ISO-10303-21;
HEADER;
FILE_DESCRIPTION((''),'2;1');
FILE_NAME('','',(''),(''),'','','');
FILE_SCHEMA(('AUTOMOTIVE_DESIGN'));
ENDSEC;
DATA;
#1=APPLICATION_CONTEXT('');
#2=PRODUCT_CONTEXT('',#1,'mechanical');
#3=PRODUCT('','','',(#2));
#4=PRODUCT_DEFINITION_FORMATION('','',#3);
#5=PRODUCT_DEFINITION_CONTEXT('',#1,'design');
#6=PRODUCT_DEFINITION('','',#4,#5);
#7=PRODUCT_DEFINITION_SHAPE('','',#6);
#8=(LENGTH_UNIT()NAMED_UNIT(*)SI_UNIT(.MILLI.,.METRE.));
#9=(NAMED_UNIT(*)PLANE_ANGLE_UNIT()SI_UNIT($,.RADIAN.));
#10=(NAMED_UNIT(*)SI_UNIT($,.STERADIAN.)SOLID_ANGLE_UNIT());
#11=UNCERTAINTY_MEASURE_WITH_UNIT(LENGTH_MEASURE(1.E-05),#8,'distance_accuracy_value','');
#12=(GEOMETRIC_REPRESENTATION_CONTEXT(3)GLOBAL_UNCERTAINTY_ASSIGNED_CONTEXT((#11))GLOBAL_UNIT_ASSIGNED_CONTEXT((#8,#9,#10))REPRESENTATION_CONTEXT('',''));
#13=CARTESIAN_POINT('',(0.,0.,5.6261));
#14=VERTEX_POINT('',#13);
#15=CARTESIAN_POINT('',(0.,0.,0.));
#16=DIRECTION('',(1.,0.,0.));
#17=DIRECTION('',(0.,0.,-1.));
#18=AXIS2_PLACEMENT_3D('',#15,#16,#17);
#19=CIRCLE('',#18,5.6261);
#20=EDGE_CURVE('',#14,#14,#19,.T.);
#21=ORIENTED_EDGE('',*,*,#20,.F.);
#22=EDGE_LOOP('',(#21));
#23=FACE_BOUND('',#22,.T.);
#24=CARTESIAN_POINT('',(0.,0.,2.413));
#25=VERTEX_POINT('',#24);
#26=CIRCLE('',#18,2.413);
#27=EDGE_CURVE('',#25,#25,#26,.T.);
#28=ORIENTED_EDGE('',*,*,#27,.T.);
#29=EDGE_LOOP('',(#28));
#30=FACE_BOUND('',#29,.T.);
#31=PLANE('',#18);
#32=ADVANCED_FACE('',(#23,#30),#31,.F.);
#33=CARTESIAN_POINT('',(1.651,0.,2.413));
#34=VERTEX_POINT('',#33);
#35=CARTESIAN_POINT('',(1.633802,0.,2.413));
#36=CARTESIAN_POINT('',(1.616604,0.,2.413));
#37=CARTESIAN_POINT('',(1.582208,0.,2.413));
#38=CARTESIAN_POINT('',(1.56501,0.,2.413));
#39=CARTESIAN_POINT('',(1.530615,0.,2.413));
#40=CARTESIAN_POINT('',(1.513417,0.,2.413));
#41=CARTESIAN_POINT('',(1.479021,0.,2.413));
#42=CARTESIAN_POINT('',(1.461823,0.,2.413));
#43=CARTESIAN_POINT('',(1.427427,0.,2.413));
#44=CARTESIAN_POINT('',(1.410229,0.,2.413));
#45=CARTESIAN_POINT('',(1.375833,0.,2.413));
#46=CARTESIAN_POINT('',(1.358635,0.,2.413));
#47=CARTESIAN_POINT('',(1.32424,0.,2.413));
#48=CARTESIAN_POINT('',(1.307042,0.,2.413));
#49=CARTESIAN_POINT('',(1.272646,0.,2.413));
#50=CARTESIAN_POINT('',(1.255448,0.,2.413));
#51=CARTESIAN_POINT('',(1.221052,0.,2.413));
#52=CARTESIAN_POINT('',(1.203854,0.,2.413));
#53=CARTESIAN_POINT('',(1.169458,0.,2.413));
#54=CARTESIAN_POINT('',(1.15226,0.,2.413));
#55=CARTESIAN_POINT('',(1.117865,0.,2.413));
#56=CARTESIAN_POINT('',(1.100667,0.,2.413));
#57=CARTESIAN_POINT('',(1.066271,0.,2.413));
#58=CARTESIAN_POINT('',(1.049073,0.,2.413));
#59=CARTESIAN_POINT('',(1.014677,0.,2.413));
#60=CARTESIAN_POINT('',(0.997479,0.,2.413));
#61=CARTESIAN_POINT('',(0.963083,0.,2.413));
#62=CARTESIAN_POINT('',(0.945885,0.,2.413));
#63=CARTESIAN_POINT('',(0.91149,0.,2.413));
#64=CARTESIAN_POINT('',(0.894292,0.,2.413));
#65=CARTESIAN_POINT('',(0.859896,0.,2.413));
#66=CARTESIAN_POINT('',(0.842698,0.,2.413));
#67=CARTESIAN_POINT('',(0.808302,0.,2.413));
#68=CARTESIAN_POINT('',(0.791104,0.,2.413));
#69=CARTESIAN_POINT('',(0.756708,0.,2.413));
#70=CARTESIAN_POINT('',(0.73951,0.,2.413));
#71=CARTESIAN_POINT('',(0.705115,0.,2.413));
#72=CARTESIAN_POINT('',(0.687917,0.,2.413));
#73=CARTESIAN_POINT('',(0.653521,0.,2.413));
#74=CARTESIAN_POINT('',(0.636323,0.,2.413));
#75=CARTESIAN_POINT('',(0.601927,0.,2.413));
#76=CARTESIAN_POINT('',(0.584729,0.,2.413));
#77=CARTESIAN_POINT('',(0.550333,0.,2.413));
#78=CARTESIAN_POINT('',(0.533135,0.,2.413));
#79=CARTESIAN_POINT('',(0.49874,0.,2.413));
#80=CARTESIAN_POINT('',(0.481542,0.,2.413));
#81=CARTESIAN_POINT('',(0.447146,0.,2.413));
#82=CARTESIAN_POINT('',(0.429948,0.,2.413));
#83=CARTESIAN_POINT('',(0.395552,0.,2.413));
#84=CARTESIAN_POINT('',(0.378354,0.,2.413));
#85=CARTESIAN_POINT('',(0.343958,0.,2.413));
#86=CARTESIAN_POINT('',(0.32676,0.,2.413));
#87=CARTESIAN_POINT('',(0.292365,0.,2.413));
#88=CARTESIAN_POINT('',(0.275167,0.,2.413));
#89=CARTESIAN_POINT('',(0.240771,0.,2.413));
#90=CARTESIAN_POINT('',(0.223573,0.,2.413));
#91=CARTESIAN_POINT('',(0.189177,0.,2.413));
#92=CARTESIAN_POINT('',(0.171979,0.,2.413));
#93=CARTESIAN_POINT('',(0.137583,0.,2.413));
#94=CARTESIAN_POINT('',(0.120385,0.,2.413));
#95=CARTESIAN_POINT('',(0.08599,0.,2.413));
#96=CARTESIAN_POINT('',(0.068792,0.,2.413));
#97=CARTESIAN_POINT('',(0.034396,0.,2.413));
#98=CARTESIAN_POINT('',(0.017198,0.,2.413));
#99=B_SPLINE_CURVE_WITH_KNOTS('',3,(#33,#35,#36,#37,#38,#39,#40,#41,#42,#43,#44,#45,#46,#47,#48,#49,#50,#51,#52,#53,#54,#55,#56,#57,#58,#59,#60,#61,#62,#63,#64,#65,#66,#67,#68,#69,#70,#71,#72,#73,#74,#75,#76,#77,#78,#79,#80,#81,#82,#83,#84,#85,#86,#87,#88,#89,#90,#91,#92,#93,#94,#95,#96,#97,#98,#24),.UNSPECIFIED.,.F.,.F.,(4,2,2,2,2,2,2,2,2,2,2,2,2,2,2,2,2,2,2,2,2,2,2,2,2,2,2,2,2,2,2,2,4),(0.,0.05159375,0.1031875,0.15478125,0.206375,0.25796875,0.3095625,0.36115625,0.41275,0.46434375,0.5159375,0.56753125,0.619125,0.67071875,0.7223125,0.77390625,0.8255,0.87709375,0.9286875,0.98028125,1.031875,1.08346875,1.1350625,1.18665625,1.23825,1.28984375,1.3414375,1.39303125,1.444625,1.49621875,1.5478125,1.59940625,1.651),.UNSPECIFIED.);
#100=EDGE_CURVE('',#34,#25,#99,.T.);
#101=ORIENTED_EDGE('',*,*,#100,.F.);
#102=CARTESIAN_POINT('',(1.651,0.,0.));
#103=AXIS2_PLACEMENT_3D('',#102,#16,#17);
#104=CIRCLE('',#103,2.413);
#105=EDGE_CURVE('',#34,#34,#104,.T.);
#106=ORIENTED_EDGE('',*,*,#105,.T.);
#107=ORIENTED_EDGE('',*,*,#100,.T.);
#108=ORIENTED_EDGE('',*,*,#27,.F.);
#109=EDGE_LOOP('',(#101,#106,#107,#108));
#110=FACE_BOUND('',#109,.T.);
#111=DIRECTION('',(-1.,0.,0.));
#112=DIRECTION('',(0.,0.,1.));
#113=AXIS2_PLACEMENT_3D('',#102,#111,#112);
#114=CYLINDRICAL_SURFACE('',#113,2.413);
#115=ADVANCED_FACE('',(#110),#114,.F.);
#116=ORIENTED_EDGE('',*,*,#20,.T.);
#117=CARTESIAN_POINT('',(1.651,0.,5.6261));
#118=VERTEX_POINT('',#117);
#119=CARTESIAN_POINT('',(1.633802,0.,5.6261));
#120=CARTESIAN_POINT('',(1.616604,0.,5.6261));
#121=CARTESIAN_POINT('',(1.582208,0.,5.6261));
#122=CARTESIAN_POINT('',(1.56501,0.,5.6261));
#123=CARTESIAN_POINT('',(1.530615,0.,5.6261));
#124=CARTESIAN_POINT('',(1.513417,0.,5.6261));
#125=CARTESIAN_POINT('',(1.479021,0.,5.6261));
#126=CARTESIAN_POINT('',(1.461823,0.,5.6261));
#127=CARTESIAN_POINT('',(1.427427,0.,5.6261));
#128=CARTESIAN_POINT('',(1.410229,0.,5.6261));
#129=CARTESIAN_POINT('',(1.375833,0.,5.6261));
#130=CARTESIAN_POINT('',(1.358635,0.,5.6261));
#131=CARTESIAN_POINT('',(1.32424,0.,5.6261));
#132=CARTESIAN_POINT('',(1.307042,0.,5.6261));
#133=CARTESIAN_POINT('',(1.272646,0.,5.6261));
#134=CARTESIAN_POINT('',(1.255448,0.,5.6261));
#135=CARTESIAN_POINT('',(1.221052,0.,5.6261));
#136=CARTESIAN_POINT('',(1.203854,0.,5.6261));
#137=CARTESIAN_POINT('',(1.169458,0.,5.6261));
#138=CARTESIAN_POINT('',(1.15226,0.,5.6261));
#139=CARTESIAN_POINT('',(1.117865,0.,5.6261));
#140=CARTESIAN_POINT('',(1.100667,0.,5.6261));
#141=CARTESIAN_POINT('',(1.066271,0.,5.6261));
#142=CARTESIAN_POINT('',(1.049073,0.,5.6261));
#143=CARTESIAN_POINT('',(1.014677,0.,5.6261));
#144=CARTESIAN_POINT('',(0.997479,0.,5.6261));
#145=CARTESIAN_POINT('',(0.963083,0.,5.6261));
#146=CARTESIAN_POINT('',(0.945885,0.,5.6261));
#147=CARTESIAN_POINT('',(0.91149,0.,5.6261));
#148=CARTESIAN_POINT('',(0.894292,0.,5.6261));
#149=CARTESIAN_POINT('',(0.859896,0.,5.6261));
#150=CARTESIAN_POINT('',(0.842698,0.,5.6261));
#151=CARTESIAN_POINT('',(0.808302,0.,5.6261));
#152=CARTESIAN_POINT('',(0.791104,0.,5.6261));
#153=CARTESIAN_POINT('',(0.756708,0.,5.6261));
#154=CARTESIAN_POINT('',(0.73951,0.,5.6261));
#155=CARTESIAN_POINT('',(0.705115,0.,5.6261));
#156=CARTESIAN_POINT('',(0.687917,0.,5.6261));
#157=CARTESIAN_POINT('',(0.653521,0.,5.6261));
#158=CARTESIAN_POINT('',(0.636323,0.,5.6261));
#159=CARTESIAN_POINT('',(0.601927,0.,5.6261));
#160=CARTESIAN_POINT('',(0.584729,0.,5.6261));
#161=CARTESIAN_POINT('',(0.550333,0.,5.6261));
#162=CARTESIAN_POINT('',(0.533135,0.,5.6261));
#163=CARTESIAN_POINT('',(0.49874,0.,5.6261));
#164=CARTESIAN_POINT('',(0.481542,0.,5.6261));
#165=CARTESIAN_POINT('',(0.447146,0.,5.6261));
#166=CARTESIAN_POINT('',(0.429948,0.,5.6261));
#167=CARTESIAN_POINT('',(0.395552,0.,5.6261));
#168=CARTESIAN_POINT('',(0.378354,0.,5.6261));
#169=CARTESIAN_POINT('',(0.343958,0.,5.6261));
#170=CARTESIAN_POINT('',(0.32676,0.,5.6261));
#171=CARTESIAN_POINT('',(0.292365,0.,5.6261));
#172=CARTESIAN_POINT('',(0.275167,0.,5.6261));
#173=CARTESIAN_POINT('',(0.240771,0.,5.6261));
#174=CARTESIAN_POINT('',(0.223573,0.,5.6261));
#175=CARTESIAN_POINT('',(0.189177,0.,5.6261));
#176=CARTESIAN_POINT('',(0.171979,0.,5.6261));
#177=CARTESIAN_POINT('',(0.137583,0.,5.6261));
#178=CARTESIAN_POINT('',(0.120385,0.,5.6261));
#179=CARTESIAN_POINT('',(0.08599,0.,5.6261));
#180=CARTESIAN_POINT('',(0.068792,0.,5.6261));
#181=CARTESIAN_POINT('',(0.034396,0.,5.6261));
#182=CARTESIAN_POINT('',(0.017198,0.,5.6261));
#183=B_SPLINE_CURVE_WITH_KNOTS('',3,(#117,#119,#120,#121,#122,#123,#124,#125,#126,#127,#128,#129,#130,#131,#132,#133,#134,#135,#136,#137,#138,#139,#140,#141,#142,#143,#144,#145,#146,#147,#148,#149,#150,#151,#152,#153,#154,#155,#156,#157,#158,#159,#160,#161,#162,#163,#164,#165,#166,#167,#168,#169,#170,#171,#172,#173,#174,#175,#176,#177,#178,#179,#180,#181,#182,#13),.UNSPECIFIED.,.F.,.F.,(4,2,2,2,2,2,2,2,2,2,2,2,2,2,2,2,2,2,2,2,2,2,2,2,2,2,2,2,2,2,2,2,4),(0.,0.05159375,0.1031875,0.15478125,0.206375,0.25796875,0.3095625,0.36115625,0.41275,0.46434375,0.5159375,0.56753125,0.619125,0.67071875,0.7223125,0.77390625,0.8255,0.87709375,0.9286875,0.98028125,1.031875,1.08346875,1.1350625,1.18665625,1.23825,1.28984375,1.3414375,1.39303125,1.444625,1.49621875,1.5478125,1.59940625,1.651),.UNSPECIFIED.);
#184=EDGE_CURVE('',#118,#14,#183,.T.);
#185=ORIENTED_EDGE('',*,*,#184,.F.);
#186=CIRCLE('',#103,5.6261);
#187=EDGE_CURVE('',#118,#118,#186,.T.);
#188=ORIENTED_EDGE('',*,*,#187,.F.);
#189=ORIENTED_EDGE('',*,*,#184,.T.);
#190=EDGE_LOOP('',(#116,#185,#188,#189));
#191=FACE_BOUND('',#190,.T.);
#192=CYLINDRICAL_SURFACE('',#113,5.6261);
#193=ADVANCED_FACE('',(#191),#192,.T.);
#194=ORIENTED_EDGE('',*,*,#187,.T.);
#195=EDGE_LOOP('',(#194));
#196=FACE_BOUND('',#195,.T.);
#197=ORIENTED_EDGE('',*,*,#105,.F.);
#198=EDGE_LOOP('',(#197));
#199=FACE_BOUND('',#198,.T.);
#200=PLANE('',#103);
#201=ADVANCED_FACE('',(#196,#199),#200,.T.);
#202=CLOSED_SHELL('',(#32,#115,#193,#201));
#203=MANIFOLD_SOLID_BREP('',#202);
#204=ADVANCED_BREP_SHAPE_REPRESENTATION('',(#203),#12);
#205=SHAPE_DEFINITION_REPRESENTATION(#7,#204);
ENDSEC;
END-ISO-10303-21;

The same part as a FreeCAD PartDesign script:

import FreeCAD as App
import Part
import Sketcher

V = App.Vector
Q = App.Units.Quantity

doc = App.newDocument("Part")
params = doc.addObject("Spreadsheet::Sheet", "Params")
for row, (alias, value) in enumerate([
    ("sketch1_diameter", "0.19 in"),
    ("sketch1_diameter2", "0.443 in"),
    ("pad1_length", "0.065 in"),
], start=1):
    params.set(f"A{row}", alias)
    params.set(f"B{row}", "=" + value)
    params.setAlias(f"B{row}", alias)

body = doc.addObject("PartDesign::Body", "Body")

# Sketch on YZ plane
sketch1 = body.newObject("Sketcher::SketchObject", "Sketch")
sketch1.AttachmentSupport = (doc.getObject("YZ_Plane"), [""])
sketch1.MapMode = "FlatFace"
sketch1.addGeometry(Part.Circle(V(0, 0, 0), V(0, 0, 1), 5.6261), False)
sketch1.addGeometry(Part.Circle(V(0, 0, 0), V(0, 0, 1), 2.413), False)
sketch1.addConstraint(Sketcher.Constraint("Coincident", 0, 3, -1, 1))
sketch1.addConstraint(Sketcher.Constraint("Coincident", 1, 3, -1, 1))
sketch1.addConstraint(Sketcher.Constraint("Diameter", 1, Q("0.19 in")))
sketch1.addConstraint(Sketcher.Constraint("Diameter", 0, Q("0.443 in")))
sketch1.setExpression("Constraints[2]", "Params.sketch1_diameter")
sketch1.setExpression("Constraints[3]", "Params.sketch1_diameter2")
pad1 = body.newObject("PartDesign::Pad", "Pad")
pad1.Profile = sketch1
pad1.setExpression("Length", "Params.pad1_length")

doc.recompute()
